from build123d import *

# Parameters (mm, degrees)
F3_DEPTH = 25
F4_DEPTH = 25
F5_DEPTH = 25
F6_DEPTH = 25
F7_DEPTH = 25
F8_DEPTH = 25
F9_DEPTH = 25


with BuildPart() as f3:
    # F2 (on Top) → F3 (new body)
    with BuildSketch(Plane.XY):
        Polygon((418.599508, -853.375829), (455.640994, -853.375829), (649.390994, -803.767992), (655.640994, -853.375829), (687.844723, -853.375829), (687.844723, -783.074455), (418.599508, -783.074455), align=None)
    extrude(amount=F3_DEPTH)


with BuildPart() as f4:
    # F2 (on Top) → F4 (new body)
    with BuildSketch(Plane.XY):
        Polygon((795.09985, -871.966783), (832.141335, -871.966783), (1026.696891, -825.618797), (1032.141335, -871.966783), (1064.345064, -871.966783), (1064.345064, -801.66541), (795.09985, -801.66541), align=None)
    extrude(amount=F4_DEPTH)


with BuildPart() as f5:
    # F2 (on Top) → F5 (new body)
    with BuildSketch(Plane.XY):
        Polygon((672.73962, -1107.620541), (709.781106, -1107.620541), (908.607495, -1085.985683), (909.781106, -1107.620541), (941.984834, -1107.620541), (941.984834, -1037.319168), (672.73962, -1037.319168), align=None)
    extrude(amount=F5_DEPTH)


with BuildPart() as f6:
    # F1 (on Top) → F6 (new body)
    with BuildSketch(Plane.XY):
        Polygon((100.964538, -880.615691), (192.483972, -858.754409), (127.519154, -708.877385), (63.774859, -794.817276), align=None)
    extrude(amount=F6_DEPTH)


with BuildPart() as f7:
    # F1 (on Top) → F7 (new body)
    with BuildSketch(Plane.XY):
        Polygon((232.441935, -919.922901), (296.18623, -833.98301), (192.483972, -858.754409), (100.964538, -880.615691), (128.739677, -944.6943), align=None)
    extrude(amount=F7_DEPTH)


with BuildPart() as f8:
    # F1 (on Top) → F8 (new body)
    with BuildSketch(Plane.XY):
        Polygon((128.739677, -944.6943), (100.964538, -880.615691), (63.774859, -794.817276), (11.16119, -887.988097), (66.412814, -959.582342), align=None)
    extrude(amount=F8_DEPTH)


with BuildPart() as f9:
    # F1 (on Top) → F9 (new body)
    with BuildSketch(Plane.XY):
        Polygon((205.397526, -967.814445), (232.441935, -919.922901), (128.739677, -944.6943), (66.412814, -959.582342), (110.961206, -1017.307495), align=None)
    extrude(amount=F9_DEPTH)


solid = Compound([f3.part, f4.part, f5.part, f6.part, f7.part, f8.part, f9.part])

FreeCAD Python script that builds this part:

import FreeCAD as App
import Part
import Sketcher
Q = App.Units.Quantity

doc = App.newDocument("Part")
body = doc.addObject("PartDesign::Body", "Body")

# Sketch on XY plane
sketch1 = body.newObject("Sketcher::SketchObject", "Sketch")
sketch1.AttachmentSupport = (doc.getObject("XY_Plane"), [""])
sketch1.MapMode = "FlatFace"
sketch1.addGeometry(Part.LineSegment(App.Vector(419, -853, 0), App.Vector(456, -853, 0)), False)
sketch1.addGeometry(Part.LineSegment(App.Vector(456, -853, 0), App.Vector(649, -804, 0)), False)
sketch1.addGeometry(Part.LineSegment(App.Vector(649, -804, 0), App.Vector(656, -853, 0)), False)
sketch1.addGeometry(Part.LineSegment(App.Vector(656, -853, 0), App.Vector(688, -853, 0)), False)
sketch1.addGeometry(Part.LineSegment(App.Vector(688, -853, 0), App.Vector(688, -783, 0)), False)
sketch1.addGeometry(Part.LineSegment(App.Vector(688, -783, 0), App.Vector(419, -783, 0)), False)
sketch1.addGeometry(Part.LineSegment(App.Vector(419, -783, 0), App.Vector(419, -853, 0)), False)
sketch1.addConstraint(Sketcher.Constraint("Coincident", 0, 2, 1, 1))
sketch1.addConstraint(Sketcher.Constraint("Coincident", 1, 2, 2, 1))
sketch1.addConstraint(Sketcher.Constraint("Coincident", 2, 2, 3, 1))
sketch1.addConstraint(Sketcher.Constraint("Coincident", 3, 2, 4, 1))
sketch1.addConstraint(Sketcher.Constraint("Coincident", 4, 2, 5, 1))
sketch1.addConstraint(Sketcher.Constraint("Coincident", 5, 2, 6, 1))
sketch1.addConstraint(Sketcher.Constraint("Coincident", 6, 2, 0, 1))
sketch1.addConstraint(Sketcher.Constraint("Horizontal", 0))
sketch1.addConstraint(Sketcher.Constraint("Horizontal", 3))
sketch1.addConstraint(Sketcher.Constraint("Vertical", 4))
sketch1.addConstraint(Sketcher.Constraint("Horizontal", 5))
sketch1.addConstraint(Sketcher.Constraint("Vertical", 6))
sketch1.addConstraint(Sketcher.Constraint("Horizontal", 0, 2, 2, 2))
sketch1.addConstraint(Sketcher.Constraint("Distance", 1, Q("200 mm")))
sketch1.addConstraint(Sketcher.Constraint("Distance", 2, Q("50 mm")))
sketch1.addConstraint(Sketcher.Constraint("DistanceX", 0, 2, 2, 2, Q("200 mm")))
sketch1.addConstraint(Sketcher.Constraint("DistanceX", 3, 1, 3, 2, Q("32.203729 mm")))
sketch1.addConstraint(Sketcher.Constraint("DistanceX", 0, 1, 0, 2, Q("37.041486 mm")))
sketch1.addConstraint(Sketcher.Constraint("DistanceY", 4, 1, 4, 2, Q("70.301374 mm")))
sketch1.addConstraint(Sketcher.Constraint("DistanceY", 0, 2, -1, 1, Q("853.375829 mm")))
sketch1.addConstraint(Sketcher.Constraint("DistanceX", -1, 1, 5, 2, Q("418.599508 mm")))
pad1 = body.newObject("PartDesign::Pad", "Pad")
pad1.Profile = sketch1
pad1.Length = 25
body2 = doc.addObject("PartDesign::Body", "Body001")

# Sketch on XY plane
sketch2 = body2.newObject("Sketcher::SketchObject", "Sketch001")
sketch2.AttachmentSupport = (doc.getObject("XY_Plane001"), [""])
sketch2.MapMode = "FlatFace"
sketch2.addGeometry(Part.LineSegment(App.Vector(795, -872, 0), App.Vector(832, -872, 0)), False)
sketch2.addGeometry(Part.LineSegment(App.Vector(832, -872, 0), App.Vector(1027, -826, 0)), False)
sketch2.addGeometry(Part.LineSegment(App.Vector(1027, -826, 0), App.Vector(1032, -872, 0)), False)
sketch2.addGeometry(Part.LineSegment(App.Vector(1032, -872, 0), App.Vector(1064, -872, 0)), False)
sketch2.addGeometry(Part.LineSegment(App.Vector(1064, -872, 0), App.Vector(1064, -802, 0)), False)
sketch2.addGeometry(Part.LineSegment(App.Vector(1064, -802, 0), App.Vector(795, -802, 0)), False)
sketch2.addGeometry(Part.LineSegment(App.Vector(795, -802, 0), App.Vector(795, -872, 0)), False)
sketch2.addConstraint(Sketcher.Constraint("Coincident", 0, 2, 1, 1))
sketch2.addConstraint(Sketcher.Constraint("Coincident", 1, 2, 2, 1))
sketch2.addConstraint(Sketcher.Constraint("Coincident", 2, 2, 3, 1))
sketch2.addConstraint(Sketcher.Constraint("Coincident", 3, 2, 4, 1))
sketch2.addConstraint(Sketcher.Constraint("Coincident", 4, 2, 5, 1))
sketch2.addConstraint(Sketcher.Constraint("Coincident", 5, 2, 6, 1))
sketch2.addConstraint(Sketcher.Constraint("Coincident", 6, 2, 0, 1))
sketch2.addConstraint(Sketcher.Constraint("Horizontal", 0))
sketch2.addConstraint(Sketcher.Constraint("Horizontal", 3))
sketch2.addConstraint(Sketcher.Constraint("Vertical", 4))
sketch2.addConstraint(Sketcher.Constraint("Horizontal", 5))
sketch2.addConstraint(Sketcher.Constraint("Vertical", 6))
sketch2.addConstraint(Sketcher.Constraint("Horizontal", 0, 2, 2, 2))
sketch2.addConstraint(Sketcher.Constraint("Distance", 1, Q("200 mm")))
sketch2.addConstraint(Sketcher.Constraint("DistanceX", 0, 2, 2, 2, Q("200 mm")))
sketch2.addConstraint(Sketcher.Constraint("DistanceX", 3, 1, 3, 2, Q("32.203729 mm")))
sketch2.addConstraint(Sketcher.Constraint("DistanceX", 0, 1, 0, 2, Q("37.041485 mm")))
sketch2.addConstraint(Sketcher.Constraint("DistanceY", 4, 1, 4, 2, Q("70.301373 mm")))
sketch2.addConstraint(Sketcher.Constraint("DistanceX", -1, 1, 1, 2, Q("1026.696891 mm")))
sketch2.addConstraint(Sketcher.Constraint("DistanceY", 4, 2, -1, 1, Q("801.66541 mm")))
sketch2.addConstraint(Sketcher.Constraint("DistanceX", -1, 1, 5, 2, Q("795.09985 mm")))
pad2 = body2.newObject("PartDesign::Pad", "Pad001")
pad2.Profile = sketch2
pad2.Length = 25
body3 = doc.addObject("PartDesign::Body", "Body002")

# Sketch on XY plane
sketch3 = body3.newObject("Sketcher::SketchObject", "Sketch002")
sketch3.AttachmentSupport = (doc.getObject("XY_Plane002"), [""])
sketch3.MapMode = "FlatFace"
sketch3.addGeometry(Part.LineSegment(App.Vector(673, -1108, 0), App.Vector(710, -1108, 0)), False)
sketch3.addGeometry(Part.LineSegment(App.Vector(710, -1108, 0), App.Vector(909, -1086, 0)), False)
sketch3.addGeometry(Part.LineSegment(App.Vector(909, -1086, 0), App.Vector(910, -1108, 0)), False)
sketch3.addGeometry(Part.LineSegment(App.Vector(910, -1108, 0), App.Vector(942, -1108, 0)), False)
sketch3.addGeometry(Part.LineSegment(App.Vector(942, -1108, 0), App.Vector(942, -1037, 0)), False)
sketch3.addGeometry(Part.LineSegment(App.Vector(942, -1037, 0), App.Vector(673, -1037, 0)), False)
sketch3.addGeometry(Part.LineSegment(App.Vector(673, -1037, 0), App.Vector(673, -1108, 0)), False)
sketch3.addConstraint(Sketcher.Constraint("Coincident", 0, 2, 1, 1))
sketch3.addConstraint(Sketcher.Constraint("Coincident", 1, 2, 2, 1))
sketch3.addConstraint(Sketcher.Constraint("Coincident", 2, 2, 3, 1))
sketch3.addConstraint(Sketcher.Constraint("Coincident", 3, 2, 4, 1))
sketch3.addConstraint(Sketcher.Constraint("Coincident", 4, 2, 5, 1))
sketch3.addConstraint(Sketcher.Constraint("Coincident", 5, 2, 6, 1))
sketch3.addConstraint(Sketcher.Constraint("Coincident", 6, 2, 0, 1))
sketch3.addConstraint(Sketcher.Constraint("Horizontal", 0))
sketch3.addConstraint(Sketcher.Constraint("Horizontal", 3))
sketch3.addConstraint(Sketcher.Constraint("Vertical", 4))
sketch3.addConstraint(Sketcher.Constraint("Horizontal", 5))
sketch3.addConstraint(Sketcher.Constraint("Vertical", 6))
sketch3.addConstraint(Sketcher.Constraint("Horizontal", 0, 2, 2, 2))
sketch3.addConstraint(Sketcher.Constraint("Distance", 1, Q("200 mm")))
sketch3.addConstraint(Sketcher.Constraint("DistanceX", 0, 2, 2, 2, Q("200 mm")))
sketch3.addConstraint(Sketcher.Constraint("DistanceX", 0, 1, 0, 2, Q("37.041486 mm")))
sketch3.addConstraint(Sketcher.Constraint("DistanceX", 3, 1, 3, 2, Q("32.203728 mm")))
sketch3.addConstraint(Sketcher.Constraint("DistanceY", 4, 1, 4, 2, Q("70.301373 mm")))
sketch3.addConstraint(Sketcher.Constraint("DistanceY", 0, 2, -1, 1, Q("1107.620541 mm")))
sketch3.addConstraint(Sketcher.Constraint("DistanceX", -1, 1, 5, 2, Q("672.73962 mm")))
sketch3.addConstraint(Sketcher.Constraint("DistanceX", 0, 2, 1, 2, Q("198.826389 mm")))
pad3 = body3.newObject("PartDesign::Pad", "Pad002")
pad3.Profile = sketch3
pad3.Length = 25
body4 = doc.addObject("PartDesign::Body", "Body003")

# Sketch on XY plane
sketch4 = body4.newObject("Sketcher::SketchObject", "Sketch003")
sketch4.AttachmentSupport = (doc.getObject("XY_Plane003"), [""])
sketch4.MapMode = "FlatFace"
sketch4.addGeometry(Part.LineSegment(App.Vector(101, -881, 0), App.Vector(192, -859, 0)), False)
sketch4.addGeometry(Part.LineSegment(App.Vector(192, -859, 0), App.Vector(128, -709, 0)), False)
sketch4.addGeometry(Part.LineSegment(App.Vector(128, -709, 0), App.Vector(64, -795, 0)), False)
sketch4.addGeometry(Part.LineSegment(App.Vector(64, -795, 0), App.Vector(101, -881, 0)), False)
sketch4.addConstraint(Sketcher.Constraint("Coincident", 0, 2, 1, 1))
sketch4.addConstraint(Sketcher.Constraint("Coincident", 1, 2, 2, 1))
sketch4.addConstraint(Sketcher.Constraint("Coincident", 2, 2, 3, 1))
sketch4.addConstraint(Sketcher.Constraint("Coincident", 3, 2, 0, 1))
sketch4.addConstraint(Sketcher.Constraint("Parallel", 1, 3))
sketch4.addConstraint(Sketcher.Constraint("Distance", 2, Q("107 mm")))
sketch4.addConstraint(Sketcher.Constraint("Distance", 0, Q("94.094221 mm")))
sketch4.addConstraint(Sketcher.Constraint("Distance", 3, Q("93.511712 mm")))
sketch4.addConstraint(Sketcher.Constraint("DistanceX", -1, 1, 0, 2, Q("192.483972 mm")))
sketch4.addConstraint(Sketcher.Constraint("DistanceY", 0, 2, -1, 1, Q("858.754409 mm")))
sketch4.addConstraint(Sketcher.Constraint("DistanceX", -1, 1, 2, 2, Q("63.774859 mm")))
sketch4.addConstraint(Sketcher.Constraint("DistanceX", -1, 1, 3, 2, Q("100.964538 mm")))
pad4 = body4.newObject("PartDesign::Pad", "Pad003")
pad4.Profile = sketch4
pad4.Length = 25
body5 = doc.addObject("PartDesign::Body", "Body004")

# Sketch on XY plane
sketch5 = body5.newObject("Sketcher::SketchObject", "Sketch004")
sketch5.AttachmentSupport = (doc.getObject("XY_Plane004"), [""])
sketch5.MapMode = "FlatFace"
sketch5.addGeometry(Part.LineSegment(App.Vector(232, -920, 0), App.Vector(296, -834, 0)), False)
sketch5.addGeometry(Part.LineSegment(App.Vector(296, -834, 0), App.Vector(192, -859, 0)), False)
sketch5.addGeometry(Part.LineSegment(App.Vector(192, -859, 0), App.Vector(101, -881, 0)), False)
sketch5.addGeometry(Part.LineSegment(App.Vector(101, -881, 0), App.Vector(129, -945, 0)), False)
sketch5.addGeometry(Part.LineSegment(App.Vector(129, -945, 0), App.Vector(232, -920, 0)), False)
sketch5.addConstraint(Sketcher.Constraint("Coincident", 0, 2, 1, 1))
sketch5.addConstraint(Sketcher.Constraint("Coincident", 1, 2, 2, 1))
sketch5.addConstraint(Sketcher.Constraint("Coincident", 2, 2, 3, 1))
sketch5.addConstraint(Sketcher.Constraint("Coincident", 3, 2, 4, 1))
sketch5.addConstraint(Sketcher.Constraint("Coincident", 4, 2, 0, 1))
sketch5.addConstraint(Sketcher.Constraint("Parallel", 1, 2))
sketch5.addConstraint(Sketcher.Constraint("Parallel", 2, 4))
sketch5.addConstraint(Sketcher.Constraint("Equal", 1, 4))
sketch5.addConstraint(Sketcher.Constraint("Distance", 0, Q("107 mm")))
sketch5.addConstraint(Sketcher.Constraint("DistanceY", 3, 2, -1, 1, Q("944.6943 mm")))
sketch5.addConstraint(Sketcher.Constraint("DistanceY", 4, 2, -1, 1, Q("919.922901 mm")))
sketch5.addConstraint(Sketcher.Constraint("Distance", 2, Q("94.094221 mm")))
sketch5.addConstraint(Sketcher.Constraint("Distance", 3, Q("69.83929 mm")))
sketch5.addConstraint(Sketcher.Constraint("DistanceX", -1, 1, 0, 2, Q("296.18623 mm")))
sketch5.addConstraint(Sketcher.Constraint("DistanceY", 0, 2, -1, 1, Q("833.98301 mm")))
pad5 = body5.newObject("PartDesign::Pad", "Pad004")
pad5.Profile = sketch5
pad5.Length = 25
body6 = doc.addObject("PartDesign::Body", "Body005")

# Sketch on XY plane
sketch6 = body6.newObject("Sketcher::SketchObject", "Sketch005")
sketch6.AttachmentSupport = (doc.getObject("XY_Plane005"), [""])
sketch6.MapMode = "FlatFace"
sketch6.addGeometry(Part.LineSegment(App.Vector(129, -945, 0), App.Vector(101, -881, 0)), False)
sketch6.addGeometry(Part.LineSegment(App.Vector(101, -881, 0), App.Vector(64, -795, 0)), False)
sketch6.addGeometry(Part.LineSegment(App.Vector(64, -795, 0), App.Vector(11, -888, 0)), False)
sketch6.addGeometry(Part.LineSegment(App.Vector(11, -888, 0), App.Vector(66, -960, 0)), False)
sketch6.addGeometry(Part.LineSegment(App.Vector(66, -960, 0), App.Vector(129, -945, 0)), False)
sketch6.addConstraint(Sketcher.Constraint("Coincident", 0, 2, 1, 1))
sketch6.addConstraint(Sketcher.Constraint("Coincident", 1, 2, 2, 1))
sketch6.addConstraint(Sketcher.Constraint("Coincident", 2, 2, 3, 1))
sketch6.addConstraint(Sketcher.Constraint("Coincident", 3, 2, 4, 1))
sketch6.addConstraint(Sketcher.Constraint("Coincident", 4, 2, 0, 1))
sketch6.addConstraint(Sketcher.Constraint("Parallel", 0, 1))
sketch6.addConstraint(Sketcher.Constraint("Distance", 2, Q("107 mm")))
sketch6.addConstraint(Sketcher.Constraint("DistanceY", 4, 2, -1, 1, Q("944.6943 mm")))
sketch6.addConstraint(Sketcher.Constraint("Distance", 0, Q("69.83929 mm")))
sketch6.addConstraint(Sketcher.Constraint("Distance", 1, Q("93.511712 mm")))
sketch6.addConstraint(Sketcher.Constraint("DistanceX", -1, 1, 0, 2, Q("100.964538 mm")))
sketch6.addConstraint(Sketcher.Constraint("DistanceY", 0, 2, -1, 1, Q("880.615691 mm")))
sketch6.addConstraint(Sketcher.Constraint("DistanceX", -1, 1, 2, 2, Q("11.16119 mm")))
sketch6.addConstraint(Sketcher.Constraint("DistanceY", 3, 2, -1, 1, Q("959.582342 mm")))
sketch6.addConstraint(Sketcher.Constraint("Distance", 3, Q("90.434937 mm")))
pad6 = body6.newObject("PartDesign::Pad", "Pad005")
pad6.Profile = sketch6
pad6.Length = 25
body7 = doc.addObject("PartDesign::Body", "Body006")

# Sketch on XY plane
sketch7 = body7.newObject("Sketcher::SketchObject", "Sketch006")
sketch7.AttachmentSupport = (doc.getObject("XY_Plane006"), [""])
sketch7.MapMode = "FlatFace"
sketch7.addGeometry(Part.LineSegment(App.Vector(205, -968, 0), App.Vector(232, -920, 0)), False)
sketch7.addGeometry(Part.LineSegment(App.Vector(232, -920, 0), App.Vector(129, -945, 0)), False)
sketch7.addGeometry(Part.LineSegment(App.Vector(129, -945, 0), App.Vector(66, -960, 0)), False)
sketch7.addGeometry(Part.LineSegment(App.Vector(66, -960, 0), App.Vector(111, -1017, 0)), False)
sketch7.addGeometry(Part.LineSegment(App.Vector(111, -1017, 0), App.Vector(205, -968, 0)), False)
sketch7.addConstraint(Sketcher.Constraint("Coincident", 0, 2, 1, 1))
sketch7.addConstraint(Sketcher.Constraint("Coincident", 1, 2, 2, 1))
sketch7.addConstraint(Sketcher.Constraint("Coincident", 2, 2, 3, 1))
sketch7.addConstraint(Sketcher.Constraint("Coincident", 3, 2, 4, 1))
sketch7.addConstraint(Sketcher.Constraint("Coincident", 4, 2, 0, 1))
sketch7.addConstraint(Sketcher.Constraint("Parallel", 1, 2))
sketch7.addConstraint(Sketcher.Constraint("Equal", 1, 4))
sketch7.addConstraint(Sketcher.Constraint("Distance", 0, Q("55 mm")))
sketch7.addConstraint(Sketcher.Constraint("DistanceY", 0, 2, -1, 1, Q("919.922901 mm")))
sketch7.addConstraint(Sketcher.Constraint("DistanceY", 1, 2, -1, 1, Q("944.6943 mm")))
sketch7.addConstraint(Sketcher.Constraint("DistanceY", 2, 2, -1, 1, Q("959.582342 mm")))
sketch7.addConstraint(Sketcher.Constraint("DistanceX", 1, 2, 0, 2, Q("103.702258 mm")))
sketch7.addConstraint(Sketcher.Constraint("DistanceX", 3, 2, 1, 2, Q("17.778471 mm")))
sketch7.addConstraint(Sketcher.Constraint("DistanceX", 4, 2, 0, 2, Q("27.044409 mm")))
sketch7.addConstraint(Sketcher.Constraint("DistanceX", -1, 1, 0, 2, Q("232.441935 mm")))
pad7 = body7.newObject("PartDesign::Pad", "Pad006")
pad7.Profile = sketch7
pad7.Length = 25

doc.recompute()
